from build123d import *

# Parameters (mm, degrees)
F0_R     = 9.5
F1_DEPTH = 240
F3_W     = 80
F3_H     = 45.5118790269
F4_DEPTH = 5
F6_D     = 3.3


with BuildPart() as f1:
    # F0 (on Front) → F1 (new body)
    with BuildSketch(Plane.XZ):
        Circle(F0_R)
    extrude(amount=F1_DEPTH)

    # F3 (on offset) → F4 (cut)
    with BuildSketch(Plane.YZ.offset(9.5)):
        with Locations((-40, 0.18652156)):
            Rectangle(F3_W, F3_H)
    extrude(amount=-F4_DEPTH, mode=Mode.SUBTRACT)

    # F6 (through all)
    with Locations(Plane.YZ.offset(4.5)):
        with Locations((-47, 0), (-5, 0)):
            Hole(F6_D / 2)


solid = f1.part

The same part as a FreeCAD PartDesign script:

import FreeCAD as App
import Part
import Sketcher
from FreeCAD import Vector


def add_polygon(sketch, points):
    """Adds a closed chain of lines whose ends are joined by coincident constraints."""
    first, n = sketch.GeometryCount, len(points)
    for a, b in zip(points, points[1:] + points[:1]):
        sketch.addGeometry(Part.LineSegment(App.Vector(*a, 0), App.Vector(*b, 0)), False)
    for i in range(n):
        sketch.addConstraint(Sketcher.Constraint("Coincident", first + i, 2, first + (i + 1) % n, 1))

doc = App.newDocument("Part")
body = doc.addObject("PartDesign::Body", "Body")

# Sketch on XZ plane
sketch1 = doc.addObject("Sketcher::SketchObject", "Sketch")
body.addObject(sketch1)
sketch1.AttachmentSupport = (doc.XZ_Plane, [""])
sketch1.MapMode = "FlatFace"
sketch1.addGeometry(Part.Circle(Vector(0, 0, 0), Vector(0, 0, 1), 9.5), False)
sketch1.addConstraint([
    Sketcher.Constraint("Coincident", 0, 3, -1, 1),
    Sketcher.Constraint("Diameter", 0, 19.0),
])
pad1 = doc.addObject("PartDesign::Pad", "Pad")
body.addObject(pad1)
pad1.Profile = sketch1
pad1.Length = 240

# Sketch on YZ plane
sketch2 = doc.addObject("Sketcher::SketchObject", "Sketch001")
body.addObject(sketch2)
sketch2.AttachmentSupport = (doc.YZ_Plane, [""])
sketch2.MapMode = "FlatFace"
sketch2.AttachmentOffset = App.Placement(Vector(0, 0, 9.5), App.Rotation())
add_polygon(sketch2, [(-80, 22.942461), (-80, -22.569418), (0, -22.569418), (0, 22.942461)])  # lines 0-3
sketch2.addConstraint([
    Sketcher.Constraint("Vertical", 0),
    Sketcher.Constraint("Horizontal", 1),
    Sketcher.Constraint("Vertical", 2),
    Sketcher.Constraint("Horizontal", 3),
    Sketcher.Constraint("PointOnObject", 1, 2, -2),
    Sketcher.Constraint("DistanceX", 1, 1, 1, 2, 80.0),
    Sketcher.Constraint("DistanceY", 0, 2, 0, 1, 45.511879),
    Sketcher.Constraint("DistanceY", -1, 1, 2, 2, 22.942461),
])
pocket1 = doc.addObject("PartDesign::Pocket", "Pocket")
body.addObject(pocket1)
pocket1.Profile = sketch2
pocket1.Length = 5

# Sketch on YZ plane
sketch3 = doc.addObject("Sketcher::SketchObject", "Sketch002")
body.addObject(sketch3)
sketch3.AttachmentSupport = (doc.YZ_Plane, [""])
sketch3.MapMode = "FlatFace"
sketch3.AttachmentOffset = App.Placement(Vector(0, 0, 4.5), App.Rotation())
sketch3.addGeometry([
    Part.Circle(Vector(-47, 0, 0), Vector(0, 0, 1), 1.65),
    Part.Circle(Vector(-5, 0, 0), Vector(0, 0, 1), 1.65),
], False)
sketch3.addConstraint([
    Sketcher.Constraint("Equal", 0, 1),
    Sketcher.Constraint("PointOnObject", 0, 3, -1),
    Sketcher.Constraint("PointOnObject", 1, 3, -1),
    Sketcher.Constraint("Diameter", 0, 3.3),
    Sketcher.Constraint("DistanceX", 0, 3, -1, 1, 47.0),
    Sketcher.Constraint("DistanceX", 1, 3, -1, 1, 5.0),
])
doc.recompute()
hole = doc.addObject("PartDesign::Hole", "Hole")
body.addObject(hole)
hole.Profile = sketch3
hole.ThreadType = "None"
hole.Diameter = 3.3
hole.DepthType = "ThroughAll"

doc.recompute()
